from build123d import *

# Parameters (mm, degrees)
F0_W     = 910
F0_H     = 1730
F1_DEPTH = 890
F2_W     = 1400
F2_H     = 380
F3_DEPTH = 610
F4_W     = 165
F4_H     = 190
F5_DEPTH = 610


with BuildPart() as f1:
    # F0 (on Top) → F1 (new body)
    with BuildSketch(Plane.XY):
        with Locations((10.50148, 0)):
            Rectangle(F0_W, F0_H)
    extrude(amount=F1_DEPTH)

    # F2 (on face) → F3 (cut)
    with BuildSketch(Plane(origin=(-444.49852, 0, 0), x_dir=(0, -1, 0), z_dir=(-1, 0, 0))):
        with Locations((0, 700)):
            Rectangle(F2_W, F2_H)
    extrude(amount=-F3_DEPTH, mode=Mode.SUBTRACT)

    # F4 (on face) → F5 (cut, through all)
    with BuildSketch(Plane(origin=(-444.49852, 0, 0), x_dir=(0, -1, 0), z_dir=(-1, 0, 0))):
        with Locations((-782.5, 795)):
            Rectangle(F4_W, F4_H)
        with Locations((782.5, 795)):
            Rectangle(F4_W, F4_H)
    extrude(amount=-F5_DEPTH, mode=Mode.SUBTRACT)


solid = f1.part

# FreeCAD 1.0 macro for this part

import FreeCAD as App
import Part
import Sketcher
from FreeCAD import Vector

doc = App.newDocument("Part")
params = doc.addObject("Spreadsheet::Sheet", "Params")
for row, (alias, value) in enumerate([
    ("sketch1_width", "910 mm"),
    ("sketch1_height", "1730 mm"),
    ("pad1_length", "890 mm"),
    ("sketch2_width", "1400 mm"),
    ("sketch2_height", "380 mm"),
    ("pocket1_length", "610 mm"),
    ("sketch3_width", "165 mm"),
    ("sketch3_height", "190 mm"),
    ("pocket2_length", "610 mm"),
], start=1):
    params.set(f"A{row}", alias)
    params.set(f"B{row}", "=" + value)
    params.setAlias(f"B{row}", alias)

body = doc.addObject("PartDesign::Body", "Body")

sketch1 = doc.addObject("Sketcher::SketchObject", "Sketch")
body.addObject(sketch1)
sketch1.AttachmentSupport = (doc.XY_Plane, [""])
sketch1.MapMode = "FlatFace"
sketch1.addGeometry([
    Part.LineSegment(Vector(-444, 865, 0), Vector(-444, -865, 0)),
    Part.LineSegment(Vector(-444, -865, 0), Vector(466, -865, 0)),
    Part.LineSegment(Vector(466, -865, 0), Vector(466, 865, 0)),
    Part.LineSegment(Vector(466, 865, 0), Vector(-444, 865, 0)),
], False)
sketch1.addConstraint([
    Sketcher.Constraint("Coincident", 0, 2, 1, 1),
    Sketcher.Constraint("Coincident", 1, 2, 2, 1),
    Sketcher.Constraint("Coincident", 2, 2, 3, 1),
    Sketcher.Constraint("Coincident", 3, 2, 0, 1),
    Sketcher.Constraint("Vertical", 0),
    Sketcher.Constraint("Horizontal", 1),
    Sketcher.Constraint("Vertical", 2),
    Sketcher.Constraint("Horizontal", 3),
    Sketcher.Constraint("DistanceX", 1, 1, 1, 2, 910.0),
    Sketcher.Constraint("DistanceY", 0, 2, 0, 1, 1730.0),
    Sketcher.Constraint("DistanceY", 0, 2, -1, 1, 865.0),
    Sketcher.Constraint("DistanceX", 0, 2, -1, 1, 444.49852),
])
sketch1.setExpression("Constraints[8]", "Params.sketch1_width")
sketch1.setExpression("Constraints[9]", "Params.sketch1_height")
pad1 = doc.addObject("PartDesign::Pad", "Pad")
body.addObject(pad1)
pad1.Profile = sketch1
pad1.setExpression("Length", "Params.pad1_length")

sketch2 = doc.addObject("Sketcher::SketchObject", "Sketch001")
body.addObject(sketch2)
sketch2.AttachmentSupport = (doc.YZ_Plane, [""])
sketch2.MapMode = "FlatFace"
sketch2.AttachmentOffset = App.Placement(Vector(0, 0, -444.49852), App.Rotation())
sketch2.addGeometry([
    Part.LineSegment(Vector(700, 890, 0), Vector(700, 510, 0)),
    Part.LineSegment(Vector(700, 510, 0), Vector(-700, 510, 0)),
    Part.LineSegment(Vector(-700, 510, 0), Vector(-700, 890, 0)),
    Part.LineSegment(Vector(-700, 890, 0), Vector(700, 890, 0)),
], False)
sketch2.addConstraint([
    Sketcher.Constraint("Coincident", 0, 2, 1, 1),
    Sketcher.Constraint("Coincident", 1, 2, 2, 1),
    Sketcher.Constraint("Coincident", 2, 2, 3, 1),
    Sketcher.Constraint("Coincident", 3, 2, 0, 1),
    Sketcher.Constraint("Vertical", 0),
    Sketcher.Constraint("Horizontal", 1),
    Sketcher.Constraint("Vertical", 2),
    Sketcher.Constraint("Horizontal", 3),
    Sketcher.Constraint("DistanceX", 1, 2, 1, 1, 1400.0),
    Sketcher.Constraint("DistanceY", 0, 2, 0, 1, 380.0),
    Sketcher.Constraint("DistanceX", -1, 1, 0, 2, 700.0),
    Sketcher.Constraint("DistanceY", -1, 1, 0, 2, 510.0),
])
sketch2.setExpression("Constraints[8]", "Params.sketch2_width")
sketch2.setExpression("Constraints[9]", "Params.sketch2_height")
pocket1 = doc.addObject("PartDesign::Pocket", "Pocket")
body.addObject(pocket1)
pocket1.Profile = sketch2
pocket1.setExpression("Length", "Params.pocket1_length")
pocket1.Reversed = True

sketch3 = doc.addObject("Sketcher::SketchObject", "Sketch002")
body.addObject(sketch3)
sketch3.AttachmentSupport = (doc.YZ_Plane, [""])
sketch3.MapMode = "FlatFace"
sketch3.AttachmentOffset = App.Placement(Vector(0, 0, -444.49852), App.Rotation())
sketch3.addGeometry([
    Part.LineSegment(Vector(865, 890, 0), Vector(865, 700, 0)),
    Part.LineSegment(Vector(865, 700, 0), Vector(700, 700, 0)),
    Part.LineSegment(Vector(700, 700, 0), Vector(700, 890, 0)),
    Part.LineSegment(Vector(700, 890, 0), Vector(865, 890, 0)),
    Part.LineSegment(Vector(-700, 890, 0), Vector(-700, 700, 0)),
    Part.LineSegment(Vector(-700, 700, 0), Vector(-865, 700, 0)),
    Part.LineSegment(Vector(-865, 700, 0), Vector(-865, 890, 0)),
    Part.LineSegment(Vector(-865, 890, 0), Vector(-700, 890, 0)),
], False)
sketch3.addConstraint([
    Sketcher.Constraint("Coincident", 0, 2, 1, 1),
    Sketcher.Constraint("Coincident", 1, 2, 2, 1),
    Sketcher.Constraint("Coincident", 2, 2, 3, 1),
    Sketcher.Constraint("Coincident", 3, 2, 0, 1),
    Sketcher.Constraint("Coincident", 4, 2, 5, 1),
    Sketcher.Constraint("Coincident", 5, 2, 6, 1),
    Sketcher.Constraint("Coincident", 6, 2, 7, 1),
    Sketcher.Constraint("Coincident", 7, 2, 4, 1),
    Sketcher.Constraint("Vertical", 0),
    Sketcher.Constraint("Horizontal", 1),
    Sketcher.Constraint("Vertical", 2),
    Sketcher.Constraint("Horizontal", 3),
    Sketcher.Constraint("Vertical", 4),
    Sketcher.Constraint("Horizontal", 5),
    Sketcher.Constraint("Vertical", 6),
    Sketcher.Constraint("Horizontal", 7),
    Sketcher.Constraint("Symmetric", 1, 2, 4, 2, -2),
    Sketcher.Constraint("Symmetric", 3, 2, 6, 2, -2),
    Sketcher.Constraint("DistanceX", 1, 2, 1, 1, 165.0),
    Sketcher.Constraint("DistanceY", 0, 2, 0, 1, 190.0),
    Sketcher.Constraint("DistanceX", -1, 1, 0, 2, 865.0),
    Sketcher.Constraint("DistanceY", -1, 1, 0, 2, 700.0),
])
sketch3.setExpression("Constraints[18]", "Params.sketch3_width")
sketch3.setExpression("Constraints[19]", "Params.sketch3_height")
pocket2 = doc.addObject("PartDesign::Pocket", "Pocket001")
body.addObject(pocket2)
pocket2.Profile = sketch3
pocket2.setExpression("Length", "Params.pocket2_length")
pocket2.Reversed = True

doc.recompute()
